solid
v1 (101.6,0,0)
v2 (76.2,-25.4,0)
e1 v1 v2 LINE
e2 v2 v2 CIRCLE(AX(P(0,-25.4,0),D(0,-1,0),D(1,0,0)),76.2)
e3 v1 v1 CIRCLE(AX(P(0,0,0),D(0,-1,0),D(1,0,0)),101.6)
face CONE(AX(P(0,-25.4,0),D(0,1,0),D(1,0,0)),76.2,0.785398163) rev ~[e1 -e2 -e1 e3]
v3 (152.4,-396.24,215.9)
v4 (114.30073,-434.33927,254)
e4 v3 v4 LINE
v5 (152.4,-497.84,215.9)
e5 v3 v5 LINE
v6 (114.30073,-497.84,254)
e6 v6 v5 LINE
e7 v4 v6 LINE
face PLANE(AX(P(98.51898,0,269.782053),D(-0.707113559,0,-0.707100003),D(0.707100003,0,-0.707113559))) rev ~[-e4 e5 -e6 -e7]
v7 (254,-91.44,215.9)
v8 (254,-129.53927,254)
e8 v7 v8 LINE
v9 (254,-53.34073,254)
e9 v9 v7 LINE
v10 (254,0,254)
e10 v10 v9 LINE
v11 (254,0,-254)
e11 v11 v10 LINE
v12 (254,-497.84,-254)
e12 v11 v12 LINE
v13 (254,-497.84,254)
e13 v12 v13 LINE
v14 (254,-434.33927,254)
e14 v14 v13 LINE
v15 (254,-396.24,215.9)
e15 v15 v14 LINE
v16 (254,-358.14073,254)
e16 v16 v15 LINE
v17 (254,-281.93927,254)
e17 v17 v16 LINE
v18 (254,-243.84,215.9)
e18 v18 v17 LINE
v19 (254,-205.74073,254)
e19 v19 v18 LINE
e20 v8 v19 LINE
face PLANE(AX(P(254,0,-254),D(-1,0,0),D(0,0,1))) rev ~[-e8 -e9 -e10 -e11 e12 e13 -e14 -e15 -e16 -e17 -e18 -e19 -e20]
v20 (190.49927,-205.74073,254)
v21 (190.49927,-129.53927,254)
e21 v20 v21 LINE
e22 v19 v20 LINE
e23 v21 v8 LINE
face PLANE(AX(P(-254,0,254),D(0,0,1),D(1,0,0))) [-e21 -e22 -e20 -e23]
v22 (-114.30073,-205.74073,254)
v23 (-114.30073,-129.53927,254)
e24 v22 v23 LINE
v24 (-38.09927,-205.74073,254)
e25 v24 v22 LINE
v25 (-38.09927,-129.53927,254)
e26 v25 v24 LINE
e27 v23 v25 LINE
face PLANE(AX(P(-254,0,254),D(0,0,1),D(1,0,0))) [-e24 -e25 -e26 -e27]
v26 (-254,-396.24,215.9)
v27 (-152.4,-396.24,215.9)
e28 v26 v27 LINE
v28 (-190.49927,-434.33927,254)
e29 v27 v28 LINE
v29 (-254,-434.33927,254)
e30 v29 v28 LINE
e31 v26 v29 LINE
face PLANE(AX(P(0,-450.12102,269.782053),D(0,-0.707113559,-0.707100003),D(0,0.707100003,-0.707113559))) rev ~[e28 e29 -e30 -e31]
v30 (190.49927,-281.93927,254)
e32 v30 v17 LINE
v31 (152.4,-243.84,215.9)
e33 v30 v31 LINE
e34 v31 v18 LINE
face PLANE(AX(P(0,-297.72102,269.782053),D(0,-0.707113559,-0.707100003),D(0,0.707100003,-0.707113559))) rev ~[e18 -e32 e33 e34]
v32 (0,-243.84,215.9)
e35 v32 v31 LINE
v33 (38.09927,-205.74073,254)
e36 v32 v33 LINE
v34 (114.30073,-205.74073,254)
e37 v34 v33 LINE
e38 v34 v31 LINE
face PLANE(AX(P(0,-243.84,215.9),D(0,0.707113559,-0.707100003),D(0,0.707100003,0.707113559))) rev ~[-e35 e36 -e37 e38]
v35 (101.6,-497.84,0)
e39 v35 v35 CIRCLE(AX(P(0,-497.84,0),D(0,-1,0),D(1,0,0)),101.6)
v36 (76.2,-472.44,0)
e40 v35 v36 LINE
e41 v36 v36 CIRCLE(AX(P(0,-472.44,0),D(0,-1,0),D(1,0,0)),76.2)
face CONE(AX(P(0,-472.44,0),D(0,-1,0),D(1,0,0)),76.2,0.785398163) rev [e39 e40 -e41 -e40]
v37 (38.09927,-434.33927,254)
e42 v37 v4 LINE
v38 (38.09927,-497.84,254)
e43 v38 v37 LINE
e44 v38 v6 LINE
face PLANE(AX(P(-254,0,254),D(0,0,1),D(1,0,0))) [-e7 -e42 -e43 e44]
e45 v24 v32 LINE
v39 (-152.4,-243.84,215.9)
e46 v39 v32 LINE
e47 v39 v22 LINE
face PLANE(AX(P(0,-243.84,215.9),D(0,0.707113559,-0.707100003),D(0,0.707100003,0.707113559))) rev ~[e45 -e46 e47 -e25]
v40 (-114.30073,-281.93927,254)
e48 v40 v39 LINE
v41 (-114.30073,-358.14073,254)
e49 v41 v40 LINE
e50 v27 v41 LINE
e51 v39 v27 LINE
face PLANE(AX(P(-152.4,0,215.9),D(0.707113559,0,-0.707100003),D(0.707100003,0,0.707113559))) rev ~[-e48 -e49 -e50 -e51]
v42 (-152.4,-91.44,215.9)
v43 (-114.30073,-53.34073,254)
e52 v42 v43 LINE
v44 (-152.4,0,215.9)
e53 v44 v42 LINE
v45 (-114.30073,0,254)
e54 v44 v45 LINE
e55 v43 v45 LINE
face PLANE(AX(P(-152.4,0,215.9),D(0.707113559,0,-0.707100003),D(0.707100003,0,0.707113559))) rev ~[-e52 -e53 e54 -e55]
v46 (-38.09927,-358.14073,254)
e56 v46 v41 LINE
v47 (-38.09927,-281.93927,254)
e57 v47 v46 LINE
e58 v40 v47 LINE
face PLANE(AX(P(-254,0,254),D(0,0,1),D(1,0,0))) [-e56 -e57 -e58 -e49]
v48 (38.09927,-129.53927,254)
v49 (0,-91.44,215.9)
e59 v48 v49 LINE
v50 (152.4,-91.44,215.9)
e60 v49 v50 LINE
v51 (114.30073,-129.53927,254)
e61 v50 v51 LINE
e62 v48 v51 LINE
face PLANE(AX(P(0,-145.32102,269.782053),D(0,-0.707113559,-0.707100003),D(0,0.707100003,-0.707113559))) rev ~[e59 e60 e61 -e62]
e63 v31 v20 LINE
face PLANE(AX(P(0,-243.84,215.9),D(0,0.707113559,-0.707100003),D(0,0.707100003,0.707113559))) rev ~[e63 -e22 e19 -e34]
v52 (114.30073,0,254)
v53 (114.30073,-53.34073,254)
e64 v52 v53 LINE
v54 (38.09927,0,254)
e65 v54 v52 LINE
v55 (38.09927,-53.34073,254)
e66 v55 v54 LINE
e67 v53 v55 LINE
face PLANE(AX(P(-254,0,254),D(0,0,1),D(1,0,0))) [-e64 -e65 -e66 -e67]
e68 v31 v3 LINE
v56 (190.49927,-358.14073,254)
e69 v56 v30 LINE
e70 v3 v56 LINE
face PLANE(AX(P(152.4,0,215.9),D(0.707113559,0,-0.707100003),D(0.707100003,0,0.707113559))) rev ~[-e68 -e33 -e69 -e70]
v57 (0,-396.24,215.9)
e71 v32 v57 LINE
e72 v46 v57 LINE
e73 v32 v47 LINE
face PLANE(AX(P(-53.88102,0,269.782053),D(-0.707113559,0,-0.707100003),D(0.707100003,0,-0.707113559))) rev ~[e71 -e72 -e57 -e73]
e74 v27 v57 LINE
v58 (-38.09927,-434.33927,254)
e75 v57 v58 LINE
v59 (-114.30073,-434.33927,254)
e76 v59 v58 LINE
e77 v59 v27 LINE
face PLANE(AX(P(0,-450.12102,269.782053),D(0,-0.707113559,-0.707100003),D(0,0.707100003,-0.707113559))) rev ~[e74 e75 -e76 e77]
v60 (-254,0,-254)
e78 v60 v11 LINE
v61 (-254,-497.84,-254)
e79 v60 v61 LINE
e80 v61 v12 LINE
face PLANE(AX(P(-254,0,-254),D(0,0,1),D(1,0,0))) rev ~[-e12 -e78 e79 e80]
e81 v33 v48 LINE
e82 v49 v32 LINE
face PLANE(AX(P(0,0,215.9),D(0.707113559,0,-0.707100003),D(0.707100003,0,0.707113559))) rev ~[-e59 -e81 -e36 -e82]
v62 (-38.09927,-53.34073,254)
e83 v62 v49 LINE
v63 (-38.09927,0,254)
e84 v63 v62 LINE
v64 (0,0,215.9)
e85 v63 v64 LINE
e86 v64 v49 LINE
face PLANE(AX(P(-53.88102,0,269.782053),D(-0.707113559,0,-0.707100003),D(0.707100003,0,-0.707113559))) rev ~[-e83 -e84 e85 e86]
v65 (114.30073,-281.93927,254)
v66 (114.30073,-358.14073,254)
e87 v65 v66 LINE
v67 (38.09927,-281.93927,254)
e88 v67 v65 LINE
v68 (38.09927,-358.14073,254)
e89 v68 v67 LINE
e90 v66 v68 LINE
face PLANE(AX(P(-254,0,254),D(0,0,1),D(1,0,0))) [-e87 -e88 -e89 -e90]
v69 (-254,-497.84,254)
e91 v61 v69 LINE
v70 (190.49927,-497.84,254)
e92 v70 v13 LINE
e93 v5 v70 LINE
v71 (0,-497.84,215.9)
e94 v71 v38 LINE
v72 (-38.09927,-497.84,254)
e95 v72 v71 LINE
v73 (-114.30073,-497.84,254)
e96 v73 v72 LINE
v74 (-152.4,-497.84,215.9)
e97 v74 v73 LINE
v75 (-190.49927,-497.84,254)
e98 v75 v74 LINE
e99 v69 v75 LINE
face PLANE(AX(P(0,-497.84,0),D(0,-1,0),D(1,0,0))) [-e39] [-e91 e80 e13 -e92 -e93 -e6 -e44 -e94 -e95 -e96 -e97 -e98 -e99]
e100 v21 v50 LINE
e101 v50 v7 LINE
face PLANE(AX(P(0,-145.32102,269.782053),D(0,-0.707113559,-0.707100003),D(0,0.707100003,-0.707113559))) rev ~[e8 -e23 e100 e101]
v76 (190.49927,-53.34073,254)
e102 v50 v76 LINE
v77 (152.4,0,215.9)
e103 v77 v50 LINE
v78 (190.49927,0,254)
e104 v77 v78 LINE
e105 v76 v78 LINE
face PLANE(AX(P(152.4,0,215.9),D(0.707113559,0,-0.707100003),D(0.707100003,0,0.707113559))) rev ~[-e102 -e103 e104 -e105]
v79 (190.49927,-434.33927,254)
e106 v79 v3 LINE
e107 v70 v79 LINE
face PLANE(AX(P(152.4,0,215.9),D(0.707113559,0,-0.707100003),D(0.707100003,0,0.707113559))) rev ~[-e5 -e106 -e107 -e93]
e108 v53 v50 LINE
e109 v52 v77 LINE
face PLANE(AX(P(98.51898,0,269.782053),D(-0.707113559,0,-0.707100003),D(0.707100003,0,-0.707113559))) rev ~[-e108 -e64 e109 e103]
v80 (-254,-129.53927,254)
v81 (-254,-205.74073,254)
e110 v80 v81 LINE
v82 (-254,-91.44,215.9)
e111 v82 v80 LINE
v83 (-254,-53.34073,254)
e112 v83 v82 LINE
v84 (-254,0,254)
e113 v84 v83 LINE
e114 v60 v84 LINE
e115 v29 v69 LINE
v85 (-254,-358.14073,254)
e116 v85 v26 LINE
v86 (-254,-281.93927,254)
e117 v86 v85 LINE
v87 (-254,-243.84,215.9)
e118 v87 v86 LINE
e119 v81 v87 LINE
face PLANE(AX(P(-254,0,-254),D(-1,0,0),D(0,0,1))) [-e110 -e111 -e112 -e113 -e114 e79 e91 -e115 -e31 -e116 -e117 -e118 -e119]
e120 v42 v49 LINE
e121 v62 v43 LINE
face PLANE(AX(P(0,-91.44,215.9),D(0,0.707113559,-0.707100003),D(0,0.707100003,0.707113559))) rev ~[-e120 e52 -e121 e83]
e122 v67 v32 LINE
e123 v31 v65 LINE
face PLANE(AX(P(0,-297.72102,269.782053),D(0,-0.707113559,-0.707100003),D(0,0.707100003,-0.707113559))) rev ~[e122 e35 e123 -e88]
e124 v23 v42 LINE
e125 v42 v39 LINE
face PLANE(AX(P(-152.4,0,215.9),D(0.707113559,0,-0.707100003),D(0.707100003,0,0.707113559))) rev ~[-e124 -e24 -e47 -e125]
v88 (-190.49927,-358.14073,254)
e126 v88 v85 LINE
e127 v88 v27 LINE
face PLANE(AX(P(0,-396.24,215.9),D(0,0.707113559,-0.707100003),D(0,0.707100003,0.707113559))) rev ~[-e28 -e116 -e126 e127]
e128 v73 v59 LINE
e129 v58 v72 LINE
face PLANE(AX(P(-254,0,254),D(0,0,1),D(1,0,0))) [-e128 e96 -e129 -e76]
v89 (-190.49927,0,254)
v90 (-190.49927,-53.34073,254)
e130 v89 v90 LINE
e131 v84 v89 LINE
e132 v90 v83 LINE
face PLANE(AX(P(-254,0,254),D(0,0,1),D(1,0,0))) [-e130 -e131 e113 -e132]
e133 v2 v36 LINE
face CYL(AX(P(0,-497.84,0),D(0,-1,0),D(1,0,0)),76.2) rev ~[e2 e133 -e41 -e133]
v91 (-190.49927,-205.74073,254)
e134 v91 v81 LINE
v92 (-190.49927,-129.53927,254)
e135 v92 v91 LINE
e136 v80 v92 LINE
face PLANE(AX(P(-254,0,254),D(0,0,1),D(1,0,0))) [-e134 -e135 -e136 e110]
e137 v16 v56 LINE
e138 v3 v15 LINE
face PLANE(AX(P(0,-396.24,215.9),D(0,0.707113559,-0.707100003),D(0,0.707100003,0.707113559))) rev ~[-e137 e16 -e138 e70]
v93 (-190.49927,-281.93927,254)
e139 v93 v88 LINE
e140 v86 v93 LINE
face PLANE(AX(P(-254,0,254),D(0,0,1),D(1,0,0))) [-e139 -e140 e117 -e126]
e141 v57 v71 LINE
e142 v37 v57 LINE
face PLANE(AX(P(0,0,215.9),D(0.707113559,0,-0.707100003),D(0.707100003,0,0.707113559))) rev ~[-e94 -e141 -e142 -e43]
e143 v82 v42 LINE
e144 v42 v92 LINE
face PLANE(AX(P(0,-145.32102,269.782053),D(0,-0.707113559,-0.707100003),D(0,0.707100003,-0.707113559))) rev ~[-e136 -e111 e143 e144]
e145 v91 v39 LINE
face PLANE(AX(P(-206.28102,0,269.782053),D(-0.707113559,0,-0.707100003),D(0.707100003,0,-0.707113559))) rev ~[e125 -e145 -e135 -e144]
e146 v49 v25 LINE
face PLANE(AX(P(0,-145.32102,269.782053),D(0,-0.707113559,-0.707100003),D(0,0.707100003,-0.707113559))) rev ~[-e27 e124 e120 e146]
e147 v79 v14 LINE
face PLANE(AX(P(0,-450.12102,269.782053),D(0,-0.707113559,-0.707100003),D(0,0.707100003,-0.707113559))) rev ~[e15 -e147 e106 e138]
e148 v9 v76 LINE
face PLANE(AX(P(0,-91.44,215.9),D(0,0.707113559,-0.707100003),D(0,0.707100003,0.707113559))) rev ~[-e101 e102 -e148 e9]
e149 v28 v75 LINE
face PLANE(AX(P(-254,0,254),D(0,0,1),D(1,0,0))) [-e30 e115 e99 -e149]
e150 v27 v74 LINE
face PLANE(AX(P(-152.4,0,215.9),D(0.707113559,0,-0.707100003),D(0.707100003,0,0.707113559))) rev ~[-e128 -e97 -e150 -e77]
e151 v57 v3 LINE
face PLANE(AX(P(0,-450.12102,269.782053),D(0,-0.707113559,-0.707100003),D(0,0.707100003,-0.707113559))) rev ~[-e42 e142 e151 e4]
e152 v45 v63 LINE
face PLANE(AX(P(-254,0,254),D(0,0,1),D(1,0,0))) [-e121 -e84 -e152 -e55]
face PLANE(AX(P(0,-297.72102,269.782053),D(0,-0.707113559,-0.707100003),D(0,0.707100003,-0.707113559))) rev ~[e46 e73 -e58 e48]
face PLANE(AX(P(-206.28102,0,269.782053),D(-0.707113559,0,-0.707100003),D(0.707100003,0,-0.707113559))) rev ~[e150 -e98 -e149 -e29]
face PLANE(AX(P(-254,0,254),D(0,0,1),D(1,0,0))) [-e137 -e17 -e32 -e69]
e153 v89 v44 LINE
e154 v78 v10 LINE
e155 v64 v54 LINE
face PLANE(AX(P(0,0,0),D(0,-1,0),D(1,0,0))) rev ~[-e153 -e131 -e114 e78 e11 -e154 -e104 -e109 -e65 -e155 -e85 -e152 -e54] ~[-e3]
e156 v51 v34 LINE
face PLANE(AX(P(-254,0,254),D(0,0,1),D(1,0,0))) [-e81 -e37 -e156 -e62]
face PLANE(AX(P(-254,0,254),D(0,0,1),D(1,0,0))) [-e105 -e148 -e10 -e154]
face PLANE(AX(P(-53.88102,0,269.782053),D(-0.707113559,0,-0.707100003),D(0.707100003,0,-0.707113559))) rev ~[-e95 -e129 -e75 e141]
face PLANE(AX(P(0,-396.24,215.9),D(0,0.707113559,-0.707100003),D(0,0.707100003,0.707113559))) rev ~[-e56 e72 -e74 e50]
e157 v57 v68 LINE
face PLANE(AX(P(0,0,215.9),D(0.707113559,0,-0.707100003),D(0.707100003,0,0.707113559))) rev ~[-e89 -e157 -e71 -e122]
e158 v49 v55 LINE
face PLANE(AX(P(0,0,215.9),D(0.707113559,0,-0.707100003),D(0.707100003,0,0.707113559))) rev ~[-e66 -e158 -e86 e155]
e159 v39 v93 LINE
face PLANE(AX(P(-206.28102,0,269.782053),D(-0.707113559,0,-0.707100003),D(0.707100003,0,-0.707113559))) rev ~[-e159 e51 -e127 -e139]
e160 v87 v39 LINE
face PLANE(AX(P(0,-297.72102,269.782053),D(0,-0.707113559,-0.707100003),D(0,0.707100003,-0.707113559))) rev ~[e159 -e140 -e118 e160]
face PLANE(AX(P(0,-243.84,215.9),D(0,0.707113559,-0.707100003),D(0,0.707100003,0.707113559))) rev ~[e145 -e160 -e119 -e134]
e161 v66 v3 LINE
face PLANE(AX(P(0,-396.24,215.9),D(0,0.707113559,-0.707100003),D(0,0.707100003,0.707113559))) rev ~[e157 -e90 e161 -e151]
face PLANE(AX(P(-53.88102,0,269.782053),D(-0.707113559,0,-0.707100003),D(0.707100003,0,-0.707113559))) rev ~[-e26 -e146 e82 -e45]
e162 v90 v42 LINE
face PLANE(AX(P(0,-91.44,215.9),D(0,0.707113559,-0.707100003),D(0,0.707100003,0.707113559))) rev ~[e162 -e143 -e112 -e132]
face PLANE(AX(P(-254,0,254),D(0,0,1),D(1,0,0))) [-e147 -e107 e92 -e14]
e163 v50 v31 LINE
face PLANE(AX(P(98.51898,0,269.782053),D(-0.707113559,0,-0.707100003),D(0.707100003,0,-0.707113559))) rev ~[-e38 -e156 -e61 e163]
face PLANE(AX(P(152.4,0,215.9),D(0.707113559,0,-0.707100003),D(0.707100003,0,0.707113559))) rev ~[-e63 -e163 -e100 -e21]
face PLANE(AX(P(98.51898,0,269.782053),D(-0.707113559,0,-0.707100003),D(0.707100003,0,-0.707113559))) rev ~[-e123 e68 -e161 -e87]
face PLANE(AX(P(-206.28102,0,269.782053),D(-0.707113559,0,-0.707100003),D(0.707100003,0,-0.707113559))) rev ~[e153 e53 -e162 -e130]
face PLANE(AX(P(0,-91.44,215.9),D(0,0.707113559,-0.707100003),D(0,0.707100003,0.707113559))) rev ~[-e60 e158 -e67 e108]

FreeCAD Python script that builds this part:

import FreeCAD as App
import Part
import Sketcher
from FreeCAD import Vector
Q = App.Units.Quantity


def edges_at(feature, points):
    """Names of the edges that pass closest to the given points."""
    edges = feature.Shape.Edges
    near = lambda p: min(range(len(edges)), key=lambda i: edges[i].distToShape(Part.Vertex(*p))[0])
    return sorted({f"Edge{near(p) + 1}" for p in points})

doc = App.newDocument("Part")
body = doc.addObject("PartDesign::Body", "Body")

# Sketch on XZ plane
sketch1 = body.newObject("Sketcher::SketchObject", "Sketch")
sketch1.AttachmentSupport = (doc.getObject("XZ_Plane"), [""])
sketch1.MapMode = "FlatFace"
sketch1.addGeometry([
    Part.LineSegment(Vector(-254, 254, 0), Vector(-254, -254, 0)),
    Part.LineSegment(Vector(-254, -254, 0), Vector(254, -254, 0)),
    Part.LineSegment(Vector(254, -254, 0), Vector(254, 254, 0)),
    Part.LineSegment(Vector(254, 254, 0), Vector(-254, 254, 0)),
], False)
sketch1.addConstraint([
    Sketcher.Constraint("Coincident", 0, 2, 1, 1),
    Sketcher.Constraint("Coincident", 1, 2, 2, 1),
    Sketcher.Constraint("Coincident", 2, 2, 3, 1),
    Sketcher.Constraint("Coincident", 3, 2, 0, 1),
    Sketcher.Constraint("Vertical", 0),
    Sketcher.Constraint("Horizontal", 1),
    Sketcher.Constraint("Vertical", 2),
    Sketcher.Constraint("Horizontal", 3),
    Sketcher.Constraint("Symmetric", 0, 2, 2, 2, -1, 1),
    Sketcher.Constraint("Equal", 3, 0),
    Sketcher.Constraint("DistanceX", 1, 1, 1, 2, Q("20 in")),
])
pad1 = body.newObject("PartDesign::Pad", "Pad")
pad1.Profile = sketch1
pad1.Length = Q("19.6 in")

# Sketch on XZ plane
sketch2 = body.newObject("Sketcher::SketchObject", "Sketch001")
sketch2.AttachmentSupport = (doc.getObject("XZ_Plane"), [""])
sketch2.MapMode = "FlatFace"
sketch2.AttachmentOffset = App.Placement(Vector(0, 0, 19.6 * 25.4), App.Rotation())
sketch2.addGeometry(Part.Circle(Vector(0, 0, 0), Vector(0, 0, 1), 76.2), False)
sketch2.addConstraint([
    Sketcher.Constraint("Coincident", 0, 3, -1, 1),
    Sketcher.Constraint("Diameter", 0, Q("6 in")),
])
pocket1 = body.newObject("PartDesign::Pocket", "Pocket")
pocket1.Profile = sketch2
pocket1.Length = 1356.487154
pocket1.Midplane = True
doc.recompute()

chamfer = body.newObject("PartDesign::Chamfer", "Chamfer")
chamfer.Base = (pocket1, edges_at(pocket1, [(-76.2, -497.84, 0), (-76.2, 0, 0)]))
chamfer.Size = Q("1 in")

# Sketch on XZ plane
sketch3 = body.newObject("Sketcher::SketchObject", "Sketch002")
sketch3.AttachmentSupport = (doc.getObject("XZ_Plane"), [""])
sketch3.MapMode = "FlatFace"
sketch3.addGeometry([
    Part.LineSegment(Vector(-206.28102, 269.782053, 0), Vector(-152.4, 215.9, 0)),
    Part.LineSegment(Vector(-152.4, 215.9, 0), Vector(-98.51898, 269.782053, 0)),
    Part.LineSegment(Vector(-98.51898, 269.782053, 0), Vector(-206.28102, 269.782053, 0)),
], False)
sketch3.addConstraint([
    Sketcher.Constraint("Coincident", 0, 2, 1, 1),
    Sketcher.Constraint("Coincident", 1, 2, 2, 1),
    Sketcher.Constraint("Coincident", 2, 2, 0, 1),
    Sketcher.Constraint("Horizontal", 2),
    Sketcher.Constraint("Equal", 0, 1),
    Sketcher.Constraint("Distance", 0, Q("3 in")),
    Sketcher.Constraint("DistanceX", 0, 2, -1, 1, Q("6 in")),
    Sketcher.Constraint("DistanceY", -1, 1, 0, 2, Q("8.5 in")),
    Sketcher.Constraint("DistanceX", 2, 2, 2, 1, Q("4.2426 in")),
])
pocket2 = body.newObject("PartDesign::Pocket", "Pocket001")
pocket2.Profile = sketch3
pocket2.Length = Q("50 in")
pocket2.Midplane = True

# Sketch on XZ plane
sketch4 = body.newObject("Sketcher::SketchObject", "Sketch003")
sketch4.AttachmentSupport = (doc.getObject("XZ_Plane"), [""])
sketch4.MapMode = "FlatFace"
sketch4.addGeometry([
    Part.LineSegment(Vector(-53.88102, 269.782053, 0), Vector(0, 215.9, 0)),
    Part.LineSegment(Vector(0, 215.9, 0), Vector(53.88102, 269.782053, 0)),
    Part.LineSegment(Vector(53.88102, 269.782053, 0), Vector(-53.88102, 269.782053, 0)),
], False)
sketch4.addConstraint([
    Sketcher.Constraint("Coincident", 0, 2, 1, 1),
    Sketcher.Constraint("Coincident", 1, 2, 2, 1),
    Sketcher.Constraint("Coincident", 2, 2, 0, 1),
    Sketcher.Constraint("Horizontal", 2),
    Sketcher.Constraint("PointOnObject", 0, 2, -2),
    Sketcher.Constraint("Equal", 0, 1),
    Sketcher.Constraint("Distance", 0, Q("3 in")),
    Sketcher.Constraint("DistanceY", -1, 1, 0, 2, Q("8.5 in")),
    Sketcher.Constraint("DistanceX", 2, 2, 2, 1, Q("4.2426 in")),
])
pocket3 = body.newObject("PartDesign::Pocket", "Pocket002")
pocket3.Profile = sketch4
pocket3.Length = Q("50 in")
pocket3.Midplane = True

# Sketch on XZ plane
sketch5 = body.newObject("Sketcher::SketchObject", "Sketch004")
sketch5.AttachmentSupport = (doc.getObject("XZ_Plane"), [""])
sketch5.MapMode = "FlatFace"
sketch5.addGeometry([
    Part.LineSegment(Vector(98.51898, 269.782053, 0), Vector(152.4, 215.9, 0)),
    Part.LineSegment(Vector(152.4, 215.9, 0), Vector(206.28102, 269.782053, 0)),
    Part.LineSegment(Vector(206.28102, 269.782053, 0), Vector(98.51898, 269.782053, 0)),
], False)
sketch5.addConstraint([
    Sketcher.Constraint("Coincident", 0, 2, 1, 1),
    Sketcher.Constraint("Coincident", 1, 2, 2, 1),
    Sketcher.Constraint("Coincident", 2, 2, 0, 1),
    Sketcher.Constraint("Horizontal", 2),
    Sketcher.Constraint("Equal", 0, 1),
    Sketcher.Constraint("Distance", 0, Q("3 in")),
    Sketcher.Constraint("DistanceX", -1, 1, 0, 2, Q("6 in")),
    Sketcher.Constraint("DistanceY", -1, 1, 0, 2, Q("8.5 in")),
    Sketcher.Constraint("DistanceX", 2, 2, 2, 1, Q("4.2426 in")),
])
pocket4 = body.newObject("PartDesign::Pocket", "Pocket003")
pocket4.Profile = sketch5
pocket4.Length = Q("50 in")
pocket4.Midplane = True

# Sketch on YZ plane
sketch6 = body.newObject("Sketcher::SketchObject", "Sketch005")
sketch6.AttachmentSupport = (doc.getObject("YZ_Plane"), [""])
sketch6.MapMode = "FlatFace"
sketch6.addGeometry([
    Part.LineSegment(Vector(-145.32102, 269.782053, 0), Vector(-91.44, 215.9, 0)),
    Part.LineSegment(Vector(-91.44, 215.9, 0), Vector(-37.55898, 269.782053, 0)),
    Part.LineSegment(Vector(-37.55898, 269.782053, 0), Vector(-145.32102, 269.782053, 0)),
], False)
sketch6.addConstraint([
    Sketcher.Constraint("Coincident", 0, 2, 1, 1),
    Sketcher.Constraint("Coincident", 1, 2, 2, 1),
    Sketcher.Constraint("Coincident", 2, 2, 0, 1),
    Sketcher.Constraint("Horizontal", 2),
    Sketcher.Constraint("Equal", 0, 1),
    Sketcher.Constraint("Distance", 0, Q("3 in")),
    Sketcher.Constraint("DistanceX", 0, 2, -1, 1, Q("3.6 in")),
    Sketcher.Constraint("DistanceY", -1, 1, 0, 2, Q("8.5 in")),
    Sketcher.Constraint("DistanceX", 2, 2, 2, 1, Q("4.2426 in")),
])
pocket5 = body.newObject("PartDesign::Pocket", "Pocket004")
pocket5.Profile = sketch6
pocket5.Length = Q("50 in")
pocket5.Midplane = True

# Sketch on YZ plane
sketch7 = body.newObject("Sketcher::SketchObject", "Sketch006")
sketch7.AttachmentSupport = (doc.getObject("YZ_Plane"), [""])
sketch7.MapMode = "FlatFace"
sketch7.addGeometry([
    Part.LineSegment(Vector(-297.72102, 269.782053, 0), Vector(-243.84, 215.9, 0)),
    Part.LineSegment(Vector(-243.84, 215.9, 0), Vector(-189.95898, 269.782053, 0)),
    Part.LineSegment(Vector(-189.95898, 269.782053, 0), Vector(-297.72102, 269.782053, 0)),
], False)
sketch7.addConstraint([
    Sketcher.Constraint("Coincident", 0, 2, 1, 1),
    Sketcher.Constraint("Coincident", 1, 2, 2, 1),
    Sketcher.Constraint("Coincident", 2, 2, 0, 1),
    Sketcher.Constraint("Horizontal", 2),
    Sketcher.Constraint("Equal", 0, 1),
    Sketcher.Constraint("Distance", 0, Q("3 in")),
    Sketcher.Constraint("DistanceX", 0, 2, -1, 1, Q("9.6 in")),
    Sketcher.Constraint("DistanceY", -1, 1, 0, 2, Q("8.5 in")),
    Sketcher.Constraint("DistanceX", 2, 2, 2, 1, Q("4.2426 in")),
])
pocket6 = body.newObject("PartDesign::Pocket", "Pocket005")
pocket6.Profile = sketch7
pocket6.Length = Q("50 in")
pocket6.Midplane = True

# Sketch on YZ plane
sketch8 = body.newObject("Sketcher::SketchObject", "Sketch007")
sketch8.AttachmentSupport = (doc.getObject("YZ_Plane"), [""])
sketch8.MapMode = "FlatFace"
sketch8.addGeometry([
    Part.LineSegment(Vector(-450.12102, 269.782053, 0), Vector(-396.24, 215.9, 0)),
    Part.LineSegment(Vector(-396.24, 215.9, 0), Vector(-342.35898, 269.782053, 0)),
    Part.LineSegment(Vector(-342.35898, 269.782053, 0), Vector(-450.12102, 269.782053, 0)),
], False)
sketch8.addConstraint([
    Sketcher.Constraint("Coincident", 0, 2, 1, 1),
    Sketcher.Constraint("Coincident", 1, 2, 2, 1),
    Sketcher.Constraint("Coincident", 2, 2, 0, 1),
    Sketcher.Constraint("Horizontal", 2),
    Sketcher.Constraint("Equal", 0, 1),
    Sketcher.Constraint("Distance", 0, Q("3 in")),
    Sketcher.Constraint("DistanceX", 0, 2, -1, 1, Q("15.6 in")),
    Sketcher.Constraint("DistanceY", -1, 1, 0, 2, Q("8.5 in")),
    Sketcher.Constraint("DistanceX", 2, 2, 2, 1, Q("4.2426 in")),
])
pocket7 = body.newObject("PartDesign::Pocket", "Pocket006")
pocket7.Profile = sketch8
pocket7.Length = Q("50 in")
pocket7.Midplane = True

doc.recompute()
